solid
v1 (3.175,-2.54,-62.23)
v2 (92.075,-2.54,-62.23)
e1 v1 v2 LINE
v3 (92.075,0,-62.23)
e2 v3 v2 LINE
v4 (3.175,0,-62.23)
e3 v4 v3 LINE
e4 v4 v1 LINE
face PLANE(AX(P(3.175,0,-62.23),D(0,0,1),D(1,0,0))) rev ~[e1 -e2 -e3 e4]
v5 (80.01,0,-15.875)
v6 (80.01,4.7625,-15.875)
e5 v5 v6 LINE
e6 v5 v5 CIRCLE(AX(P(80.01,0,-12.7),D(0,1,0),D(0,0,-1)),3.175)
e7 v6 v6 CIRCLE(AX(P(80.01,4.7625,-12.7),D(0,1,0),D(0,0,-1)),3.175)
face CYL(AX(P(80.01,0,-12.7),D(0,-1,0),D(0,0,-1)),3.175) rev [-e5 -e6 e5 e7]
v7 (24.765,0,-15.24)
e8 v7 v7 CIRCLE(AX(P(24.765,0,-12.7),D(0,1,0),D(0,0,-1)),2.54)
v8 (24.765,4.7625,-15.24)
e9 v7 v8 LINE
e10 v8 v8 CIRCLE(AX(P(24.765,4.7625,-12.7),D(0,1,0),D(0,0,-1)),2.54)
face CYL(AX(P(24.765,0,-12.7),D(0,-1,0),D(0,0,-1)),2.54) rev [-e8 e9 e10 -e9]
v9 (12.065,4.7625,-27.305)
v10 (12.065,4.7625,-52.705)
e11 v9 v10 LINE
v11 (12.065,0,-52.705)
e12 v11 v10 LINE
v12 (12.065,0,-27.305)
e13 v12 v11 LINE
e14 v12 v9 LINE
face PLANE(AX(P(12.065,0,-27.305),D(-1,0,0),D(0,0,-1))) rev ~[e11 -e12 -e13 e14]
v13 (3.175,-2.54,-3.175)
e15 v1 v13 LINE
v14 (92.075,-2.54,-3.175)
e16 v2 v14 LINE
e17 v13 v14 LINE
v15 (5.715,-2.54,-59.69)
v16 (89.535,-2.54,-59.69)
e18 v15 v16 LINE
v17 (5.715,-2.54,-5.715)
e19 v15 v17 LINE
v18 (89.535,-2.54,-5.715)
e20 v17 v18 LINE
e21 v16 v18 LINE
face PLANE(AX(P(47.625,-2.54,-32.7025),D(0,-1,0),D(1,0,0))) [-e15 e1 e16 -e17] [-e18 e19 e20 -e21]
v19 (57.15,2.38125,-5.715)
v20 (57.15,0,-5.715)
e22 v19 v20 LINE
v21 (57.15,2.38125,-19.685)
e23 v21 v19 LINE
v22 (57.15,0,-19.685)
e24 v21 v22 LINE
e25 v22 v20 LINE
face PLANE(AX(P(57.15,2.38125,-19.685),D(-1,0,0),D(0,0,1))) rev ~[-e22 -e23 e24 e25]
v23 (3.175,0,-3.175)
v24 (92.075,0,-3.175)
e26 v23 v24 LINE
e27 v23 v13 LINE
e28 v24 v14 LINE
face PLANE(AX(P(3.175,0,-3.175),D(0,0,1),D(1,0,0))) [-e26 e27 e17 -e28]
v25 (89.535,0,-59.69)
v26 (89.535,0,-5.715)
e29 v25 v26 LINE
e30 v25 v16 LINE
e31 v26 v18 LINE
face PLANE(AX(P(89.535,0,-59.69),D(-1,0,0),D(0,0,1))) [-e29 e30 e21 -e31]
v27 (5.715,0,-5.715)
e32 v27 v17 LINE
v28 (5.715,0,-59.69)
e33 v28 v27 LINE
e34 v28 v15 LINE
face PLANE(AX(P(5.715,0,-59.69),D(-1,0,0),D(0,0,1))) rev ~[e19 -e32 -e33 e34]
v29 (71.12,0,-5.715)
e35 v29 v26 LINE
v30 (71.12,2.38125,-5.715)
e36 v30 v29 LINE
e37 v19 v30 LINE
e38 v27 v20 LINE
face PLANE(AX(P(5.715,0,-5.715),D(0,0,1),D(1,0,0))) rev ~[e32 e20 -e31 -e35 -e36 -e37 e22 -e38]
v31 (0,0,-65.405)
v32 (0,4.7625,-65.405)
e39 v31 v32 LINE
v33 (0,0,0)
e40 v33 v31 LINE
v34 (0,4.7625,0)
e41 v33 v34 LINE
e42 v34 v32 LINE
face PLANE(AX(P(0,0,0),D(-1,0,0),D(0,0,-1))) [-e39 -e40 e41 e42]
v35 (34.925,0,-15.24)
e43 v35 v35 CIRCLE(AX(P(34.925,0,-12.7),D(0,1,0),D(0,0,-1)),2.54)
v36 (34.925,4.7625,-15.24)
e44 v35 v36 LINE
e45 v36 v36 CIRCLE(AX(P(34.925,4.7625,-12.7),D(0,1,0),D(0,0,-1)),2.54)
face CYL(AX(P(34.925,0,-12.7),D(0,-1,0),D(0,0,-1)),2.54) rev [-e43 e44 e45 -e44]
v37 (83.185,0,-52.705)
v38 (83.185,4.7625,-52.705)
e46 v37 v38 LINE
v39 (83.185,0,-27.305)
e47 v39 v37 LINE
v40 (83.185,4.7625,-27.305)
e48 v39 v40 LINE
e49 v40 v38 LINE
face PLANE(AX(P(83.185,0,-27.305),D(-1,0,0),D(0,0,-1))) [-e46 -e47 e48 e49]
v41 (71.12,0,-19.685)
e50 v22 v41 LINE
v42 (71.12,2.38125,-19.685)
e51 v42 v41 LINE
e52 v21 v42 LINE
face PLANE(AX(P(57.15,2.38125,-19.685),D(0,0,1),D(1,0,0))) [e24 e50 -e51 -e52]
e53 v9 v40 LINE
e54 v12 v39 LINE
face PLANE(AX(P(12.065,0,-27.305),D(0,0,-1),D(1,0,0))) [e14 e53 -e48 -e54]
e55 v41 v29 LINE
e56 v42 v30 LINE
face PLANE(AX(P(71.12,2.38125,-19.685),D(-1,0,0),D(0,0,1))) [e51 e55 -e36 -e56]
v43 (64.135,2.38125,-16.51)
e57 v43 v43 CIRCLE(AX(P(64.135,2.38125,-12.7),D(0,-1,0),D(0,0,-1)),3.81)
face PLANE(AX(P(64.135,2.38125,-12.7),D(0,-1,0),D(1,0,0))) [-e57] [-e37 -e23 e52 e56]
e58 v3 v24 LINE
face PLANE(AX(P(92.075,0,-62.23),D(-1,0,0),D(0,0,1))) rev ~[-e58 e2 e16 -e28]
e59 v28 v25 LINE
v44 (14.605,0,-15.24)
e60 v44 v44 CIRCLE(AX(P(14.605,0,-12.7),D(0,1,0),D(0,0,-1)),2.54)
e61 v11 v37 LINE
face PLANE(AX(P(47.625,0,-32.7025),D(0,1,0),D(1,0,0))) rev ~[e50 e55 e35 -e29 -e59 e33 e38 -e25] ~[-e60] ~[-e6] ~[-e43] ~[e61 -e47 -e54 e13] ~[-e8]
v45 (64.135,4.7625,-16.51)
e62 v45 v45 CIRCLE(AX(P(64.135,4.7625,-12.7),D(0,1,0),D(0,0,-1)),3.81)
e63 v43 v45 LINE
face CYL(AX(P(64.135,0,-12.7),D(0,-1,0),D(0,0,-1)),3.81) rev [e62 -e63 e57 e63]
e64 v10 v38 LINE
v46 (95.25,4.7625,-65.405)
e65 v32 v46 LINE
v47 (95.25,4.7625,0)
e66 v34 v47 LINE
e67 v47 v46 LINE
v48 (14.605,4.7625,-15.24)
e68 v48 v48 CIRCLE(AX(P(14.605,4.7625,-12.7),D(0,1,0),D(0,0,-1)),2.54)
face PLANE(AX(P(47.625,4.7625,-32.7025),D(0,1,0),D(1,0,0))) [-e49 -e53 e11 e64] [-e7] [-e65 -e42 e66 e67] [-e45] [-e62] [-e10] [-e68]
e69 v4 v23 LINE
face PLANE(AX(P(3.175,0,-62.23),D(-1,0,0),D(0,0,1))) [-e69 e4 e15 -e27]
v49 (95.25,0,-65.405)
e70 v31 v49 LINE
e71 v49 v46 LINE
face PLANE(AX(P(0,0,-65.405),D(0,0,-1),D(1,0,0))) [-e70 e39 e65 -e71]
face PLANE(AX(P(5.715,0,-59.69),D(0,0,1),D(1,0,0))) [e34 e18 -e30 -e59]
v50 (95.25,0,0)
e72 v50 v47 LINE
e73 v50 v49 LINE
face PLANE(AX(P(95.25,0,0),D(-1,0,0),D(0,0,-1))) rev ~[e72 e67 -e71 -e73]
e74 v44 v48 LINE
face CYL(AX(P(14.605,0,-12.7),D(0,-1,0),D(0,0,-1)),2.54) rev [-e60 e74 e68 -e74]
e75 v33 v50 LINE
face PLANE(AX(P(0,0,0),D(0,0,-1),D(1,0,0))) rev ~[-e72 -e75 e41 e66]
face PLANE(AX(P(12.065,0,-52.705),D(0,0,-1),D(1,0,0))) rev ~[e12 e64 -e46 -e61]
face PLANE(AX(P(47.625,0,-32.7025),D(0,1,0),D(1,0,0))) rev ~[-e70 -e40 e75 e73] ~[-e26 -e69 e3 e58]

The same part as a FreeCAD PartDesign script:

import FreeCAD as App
import Part
import Sketcher
Q = App.Units.Quantity


def add_polygon(sketch, points):
    """Adds a closed chain of lines whose ends are joined by coincident constraints."""
    first, n = sketch.GeometryCount, len(points)
    for a, b in zip(points, points[1:] + points[:1]):
        sketch.addGeometry(Part.LineSegment(App.Vector(*a, 0), App.Vector(*b, 0)), False)
    for i in range(n):
        sketch.addConstraint(Sketcher.Constraint("Coincident", first + i, 2, first + (i + 1) % n, 1))

doc = App.newDocument("Part")
body = doc.addObject("PartDesign::Body", "Body")

# Sketch on XZ plane
sketch1 = body.newObject("Sketcher::SketchObject", "Sketch")
sketch1.AttachmentSupport = (doc.getObject("XZ_Plane"), [""])
sketch1.MapMode = "FlatFace"
add_polygon(sketch1, [(0, -65.4), (0, 0), (95.2, 0), (95.2, -65.4)])  # lines 0-3
sketch1.addGeometry(Part.Circle(App.Vector(14.6, -12.7, 0), App.Vector(0, 0, 1), 2.5), False)  # 4
sketch1.addGeometry(Part.Circle(App.Vector(24.8, -12.7, 0), App.Vector(0, 0, 1), 2.5), False)  # 5
sketch1.addGeometry(Part.Circle(App.Vector(34.9, -12.7, 0), App.Vector(0, 0, 1), 2.5), False)  # 6
sketch1.addGeometry(Part.Circle(App.Vector(64.1, -12.7, 0), App.Vector(0, 0, 1), 3.8), False)  # 7
sketch1.addGeometry(Part.Circle(App.Vector(80, -12.7, 0), App.Vector(0, 0, 1), 3.2), False)  # 8
add_polygon(sketch1, [(83.2, -27.3), (12.1, -27.3), (12.1, -52.7), (83.2, -52.7)])  # lines 9-12
sketch1.addConstraint([
    Sketcher.Constraint("Vertical", 0),
    Sketcher.Constraint("Horizontal", 1),
    Sketcher.Constraint("Vertical", 2),
    Sketcher.Constraint("Horizontal", 3),
    Sketcher.Constraint("Horizontal", 9),
    Sketcher.Constraint("Vertical", 10),
    Sketcher.Constraint("Horizontal", 11),
    Sketcher.Constraint("Vertical", 12),
    Sketcher.Constraint("Coincident", 0, 2, -1, 1),
    Sketcher.Constraint("Equal", 4, 5),
    Sketcher.Constraint("Equal", 5, 6),
    Sketcher.Constraint("Horizontal", 4, 3, 5, 3),
    Sketcher.Constraint("Horizontal", 5, 3, 6, 3),
    Sketcher.Constraint("Horizontal", 6, 3, 7, 3),
    Sketcher.Constraint("Horizontal", 7, 3, 8, 3),
    Sketcher.Constraint("Diameter", 4, Q("0.2 in")),
    Sketcher.Constraint("Diameter", 7, Q("0.3 in")),
    Sketcher.Constraint("Diameter", 8, Q("0.25 in")),
    Sketcher.Constraint("DistanceY", 10, 2, 10, 1, Q("1 in")),
    Sketcher.Constraint("DistanceX", 9, 2, 9, 1, Q("2.8 in")),
    Sketcher.Constraint("DistanceX", 1, 1, 1, 2, Q("3.75 in")),
    Sketcher.Constraint("DistanceY", 4, 3, -1, 1, Q("0.5 in")),
    Sketcher.Constraint("DistanceX", 4, 3, 5, 3, Q("0.4 in")),
    Sketcher.Constraint("DistanceX", 5, 3, 6, 3, Q("0.4 in")),
    Sketcher.Constraint("DistanceX", 8, 3, 1, 2, Q("0.6 in")),
    Sketcher.Constraint("DistanceX", 9, 2, 4, 3, Q("0.1 in")),
    Sketcher.Constraint("DistanceY", 3, 2, 9, 2, Q("1.5 in")),
    Sketcher.Constraint("DistanceY", 0, 1, 0, 2, Q("2.575 in")),
    Sketcher.Constraint("DistanceX", 6, 3, 7, 3, Q("1.15 in")),
    Sketcher.Constraint("DistanceX", -1, 1, 4, 3, Q("0.575 in")),
])
pad1 = body.newObject("PartDesign::Pad", "Pad")
pad1.Profile = sketch1
pad1.Length = Q("0.1875 in")
pad1.Reversed = True

# Sketch on XZ plane
sketch2 = body.newObject("Sketcher::SketchObject", "Sketch001")
sketch2.AttachmentSupport = (doc.getObject("XZ_Plane"), [""])
sketch2.MapMode = "FlatFace"
add_polygon(sketch2, [(3, -3), (3, -62), (92, -62), (92, -3)])  # lines 0-3
add_polygon(sketch2, [(90, -60), (6, -60), (6, -6), (90, -6)])  # lines 4-7
sketch2.addConstraint([
    Sketcher.Constraint("Vertical", 0),
    Sketcher.Constraint("Horizontal", 1),
    Sketcher.Constraint("Vertical", 2),
    Sketcher.Constraint("Horizontal", 3),
    Sketcher.Constraint("Horizontal", 4),
    Sketcher.Constraint("Vertical", 5),
    Sketcher.Constraint("Horizontal", 6),
    Sketcher.Constraint("Vertical", 7),
    Sketcher.Constraint("DistanceX", 1, 1, 1, 2, Q("3.5 in")),
    Sketcher.Constraint("DistanceX", 4, 2, 4, 1, Q("3.3 in")),
    Sketcher.Constraint("DistanceX", 0, 2, 4, 2, Q("0.1 in")),
    Sketcher.Constraint("DistanceY", 0, 2, 4, 2, Q("0.1 in")),
    Sketcher.Constraint("DistanceY", 5, 2, 3, 2, Q("0.1 in")),
    Sketcher.Constraint("DistanceY", 0, 2, 0, 1, Q("2.325 in")),
    Sketcher.Constraint("DistanceY", 0, 2, -1, 1, Q("2.45 in")),
    Sketcher.Constraint("DistanceX", -1, 1, 0, 2, Q("0.125 in")),
])
pad2 = body.newObject("PartDesign::Pad", "Pad001")
pad2.Profile = sketch2
pad2.Length = Q("0.1 in")

# Sketch on XZ plane
sketch3 = body.newObject("Sketcher::SketchObject", "Sketch002")
sketch3.AttachmentSupport = (doc.getObject("XZ_Plane"), [""])
sketch3.MapMode = "FlatFace"
add_polygon(sketch3, [(57, -6), (57, -20), (71, -20), (71, -6)])  # lines 0-3
sketch3.addConstraint([
    Sketcher.Constraint("Vertical", 0),
    Sketcher.Constraint("Horizontal", 1),
    Sketcher.Constraint("Vertical", 2),
    Sketcher.Constraint("Horizontal", 3),
    Sketcher.Constraint("Equal", 3, 0),
    Sketcher.Constraint("DistanceX", 1, 1, 1, 2, Q("0.55 in")),
    Sketcher.Constraint("DistanceX", -1, 1, 1, 2, Q("2.8 in")),
    Sketcher.Constraint("DistanceY", 0, 2, -1, 1, Q("0.775 in")),
])
pocket1 = body.newObject("PartDesign::Pocket", "Pocket")
pocket1.Profile = sketch3
pocket1.Type = "TwoLengths"
pocket1.Length = 116.641938
pocket1.Length2 = Q("0.09375 in")
pocket1.Reversed = True

doc.recompute()
